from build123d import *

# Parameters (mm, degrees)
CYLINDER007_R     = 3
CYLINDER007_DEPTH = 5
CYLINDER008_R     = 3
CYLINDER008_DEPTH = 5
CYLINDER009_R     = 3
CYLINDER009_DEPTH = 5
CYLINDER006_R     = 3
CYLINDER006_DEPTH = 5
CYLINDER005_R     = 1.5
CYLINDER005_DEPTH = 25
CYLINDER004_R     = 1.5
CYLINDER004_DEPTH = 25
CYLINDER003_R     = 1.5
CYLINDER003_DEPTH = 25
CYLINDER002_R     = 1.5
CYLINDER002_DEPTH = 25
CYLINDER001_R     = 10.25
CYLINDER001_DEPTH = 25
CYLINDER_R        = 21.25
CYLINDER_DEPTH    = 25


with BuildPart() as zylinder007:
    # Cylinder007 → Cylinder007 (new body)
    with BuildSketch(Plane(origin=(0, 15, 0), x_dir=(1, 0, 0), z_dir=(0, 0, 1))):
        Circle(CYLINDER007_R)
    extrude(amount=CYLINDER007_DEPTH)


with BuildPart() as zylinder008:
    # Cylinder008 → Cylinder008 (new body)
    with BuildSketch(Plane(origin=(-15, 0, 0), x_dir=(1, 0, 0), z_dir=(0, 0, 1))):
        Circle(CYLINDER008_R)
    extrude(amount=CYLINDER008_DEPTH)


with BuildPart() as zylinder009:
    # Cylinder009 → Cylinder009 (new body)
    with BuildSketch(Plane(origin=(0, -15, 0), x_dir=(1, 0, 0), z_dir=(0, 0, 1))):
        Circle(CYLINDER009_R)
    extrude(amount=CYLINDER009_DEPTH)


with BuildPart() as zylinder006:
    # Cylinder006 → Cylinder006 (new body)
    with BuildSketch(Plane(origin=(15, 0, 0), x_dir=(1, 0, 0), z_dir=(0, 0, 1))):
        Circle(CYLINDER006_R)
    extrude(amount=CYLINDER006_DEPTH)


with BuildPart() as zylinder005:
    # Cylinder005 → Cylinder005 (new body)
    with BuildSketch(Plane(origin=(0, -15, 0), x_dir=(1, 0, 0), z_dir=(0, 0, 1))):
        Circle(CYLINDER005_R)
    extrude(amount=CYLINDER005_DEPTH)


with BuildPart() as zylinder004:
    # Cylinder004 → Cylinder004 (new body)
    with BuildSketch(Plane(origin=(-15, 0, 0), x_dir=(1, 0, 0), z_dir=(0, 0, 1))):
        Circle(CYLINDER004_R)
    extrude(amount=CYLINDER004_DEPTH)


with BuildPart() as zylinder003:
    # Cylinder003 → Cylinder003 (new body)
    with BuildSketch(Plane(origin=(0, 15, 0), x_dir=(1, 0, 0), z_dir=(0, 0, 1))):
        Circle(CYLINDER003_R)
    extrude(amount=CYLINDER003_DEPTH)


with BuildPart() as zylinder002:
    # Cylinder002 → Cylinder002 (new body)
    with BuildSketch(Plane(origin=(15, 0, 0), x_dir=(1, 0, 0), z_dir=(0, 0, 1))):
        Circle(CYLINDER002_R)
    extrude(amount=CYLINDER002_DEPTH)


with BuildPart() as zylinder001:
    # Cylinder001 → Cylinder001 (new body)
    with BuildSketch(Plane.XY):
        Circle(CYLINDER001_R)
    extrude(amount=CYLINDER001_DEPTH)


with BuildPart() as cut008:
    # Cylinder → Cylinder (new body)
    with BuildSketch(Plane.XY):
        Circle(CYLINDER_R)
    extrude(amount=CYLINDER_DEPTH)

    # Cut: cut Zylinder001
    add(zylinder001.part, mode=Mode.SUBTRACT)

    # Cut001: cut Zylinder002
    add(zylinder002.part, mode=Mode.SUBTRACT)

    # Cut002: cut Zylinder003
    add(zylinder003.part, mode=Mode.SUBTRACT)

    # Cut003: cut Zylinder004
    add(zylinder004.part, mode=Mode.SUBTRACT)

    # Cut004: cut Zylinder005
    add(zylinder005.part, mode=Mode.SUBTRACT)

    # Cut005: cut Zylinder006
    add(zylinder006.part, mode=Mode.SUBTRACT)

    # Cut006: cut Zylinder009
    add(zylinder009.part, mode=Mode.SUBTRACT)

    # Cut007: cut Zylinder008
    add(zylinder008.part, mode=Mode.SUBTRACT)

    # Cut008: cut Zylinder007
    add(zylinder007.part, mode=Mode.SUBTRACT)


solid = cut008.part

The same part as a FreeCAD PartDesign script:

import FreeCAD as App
import Part
import Sketcher
Q = App.Units.Quantity

doc = App.newDocument("Part")
body = doc.addObject("PartDesign::Body", "Body")

sketch1 = doc.addObject("Sketcher::SketchObject", "Sketch")
body.addObject(sketch1)
sketch1.AttachmentSupport = (doc.XY_Plane, [""])
sketch1.MapMode = "FlatFace"
sketch1.addGeometry(Part.Circle(App.Vector(0, 15, 0), App.Vector(0, 0, 1), 3), False)
sketch1.addConstraint(Sketcher.Constraint("PointOnObject", 0, 3, -2))
sketch1.addConstraint(Sketcher.Constraint("Diameter", 0, Q("6 mm")))
sketch1.addConstraint(Sketcher.Constraint("DistanceY", -1, 1, 0, 3, Q("15 mm")))
pad1 = doc.addObject("PartDesign::Pad", "Pad")
body.addObject(pad1)
pad1.Profile = sketch1
pad1.Length = 5
body2 = doc.addObject("PartDesign::Body", "Body001")

sketch2 = doc.addObject("Sketcher::SketchObject", "Sketch001")
body2.addObject(sketch2)
sketch2.AttachmentSupport = (doc.getObject("XY_Plane001"), [""])
sketch2.MapMode = "FlatFace"
sketch2.addGeometry(Part.Circle(App.Vector(-15, 0, 0), App.Vector(0, 0, 1), 3), False)
sketch2.addConstraint(Sketcher.Constraint("PointOnObject", 0, 3, -1))
sketch2.addConstraint(Sketcher.Constraint("Diameter", 0, Q("6 mm")))
sketch2.addConstraint(Sketcher.Constraint("DistanceX", 0, 3, -1, 1, Q("15 mm")))
pad2 = doc.addObject("PartDesign::Pad", "Pad001")
body2.addObject(pad2)
pad2.Profile = sketch2
pad2.Length = 5
body3 = doc.addObject("PartDesign::Body", "Body002")

sketch3 = doc.addObject("Sketcher::SketchObject", "Sketch002")
body3.addObject(sketch3)
sketch3.AttachmentSupport = (doc.getObject("XY_Plane002"), [""])
sketch3.MapMode = "FlatFace"
sketch3.addGeometry(Part.Circle(App.Vector(0, -15, 0), App.Vector(0, 0, 1), 3), False)
sketch3.addConstraint(Sketcher.Constraint("PointOnObject", 0, 3, -2))
sketch3.addConstraint(Sketcher.Constraint("Diameter", 0, Q("6 mm")))
sketch3.addConstraint(Sketcher.Constraint("DistanceY", 0, 3, -1, 1, Q("15 mm")))
pad3 = doc.addObject("PartDesign::Pad", "Pad002")
body3.addObject(pad3)
pad3.Profile = sketch3
pad3.Length = 5
body4 = doc.addObject("PartDesign::Body", "Body003")

sketch4 = doc.addObject("Sketcher::SketchObject", "Sketch003")
body4.addObject(sketch4)
sketch4.AttachmentSupport = (doc.getObject("XY_Plane003"), [""])
sketch4.MapMode = "FlatFace"
sketch4.addGeometry(Part.Circle(App.Vector(15, 0, 0), App.Vector(0, 0, 1), 3), False)
sketch4.addConstraint(Sketcher.Constraint("PointOnObject", 0, 3, -1))
sketch4.addConstraint(Sketcher.Constraint("Diameter", 0, Q("6 mm")))
sketch4.addConstraint(Sketcher.Constraint("DistanceX", -1, 1, 0, 3, Q("15 mm")))
pad4 = doc.addObject("PartDesign::Pad", "Pad003")
body4.addObject(pad4)
pad4.Profile = sketch4
pad4.Length = 5
body5 = doc.addObject("PartDesign::Body", "Body004")

sketch5 = doc.addObject("Sketcher::SketchObject", "Sketch004")
body5.addObject(sketch5)
sketch5.AttachmentSupport = (doc.getObject("XY_Plane004"), [""])
sketch5.MapMode = "FlatFace"
sketch5.addGeometry(Part.Circle(App.Vector(0, -15, 0), App.Vector(0, 0, 1), 1.5), False)
sketch5.addConstraint(Sketcher.Constraint("PointOnObject", 0, 3, -2))
sketch5.addConstraint(Sketcher.Constraint("Diameter", 0, Q("3 mm")))
sketch5.addConstraint(Sketcher.Constraint("DistanceY", 0, 3, -1, 1, Q("15 mm")))
pad5 = doc.addObject("PartDesign::Pad", "Pad004")
body5.addObject(pad5)
pad5.Profile = sketch5
pad5.Length = 25
body6 = doc.addObject("PartDesign::Body", "Body005")

sketch6 = doc.addObject("Sketcher::SketchObject", "Sketch005")
body6.addObject(sketch6)
sketch6.AttachmentSupport = (doc.getObject("XY_Plane005"), [""])
sketch6.MapMode = "FlatFace"
sketch6.addGeometry(Part.Circle(App.Vector(-15, 0, 0), App.Vector(0, 0, 1), 1.5), False)
sketch6.addConstraint(Sketcher.Constraint("PointOnObject", 0, 3, -1))
sketch6.addConstraint(Sketcher.Constraint("Diameter", 0, Q("3 mm")))
sketch6.addConstraint(Sketcher.Constraint("DistanceX", 0, 3, -1, 1, Q("15 mm")))
pad6 = doc.addObject("PartDesign::Pad", "Pad005")
body6.addObject(pad6)
pad6.Profile = sketch6
pad6.Length = 25
body7 = doc.addObject("PartDesign::Body", "Body006")

sketch7 = doc.addObject("Sketcher::SketchObject", "Sketch006")
body7.addObject(sketch7)
sketch7.AttachmentSupport = (doc.getObject("XY_Plane006"), [""])
sketch7.MapMode = "FlatFace"
sketch7.addGeometry(Part.Circle(App.Vector(0, 15, 0), App.Vector(0, 0, 1), 1.5), False)
sketch7.addConstraint(Sketcher.Constraint("PointOnObject", 0, 3, -2))
sketch7.addConstraint(Sketcher.Constraint("Diameter", 0, Q("3 mm")))
sketch7.addConstraint(Sketcher.Constraint("DistanceY", -1, 1, 0, 3, Q("15 mm")))
pad7 = doc.addObject("PartDesign::Pad", "Pad006")
body7.addObject(pad7)
pad7.Profile = sketch7
pad7.Length = 25
body8 = doc.addObject("PartDesign::Body", "Body007")

sketch8 = doc.addObject("Sketcher::SketchObject", "Sketch007")
body8.addObject(sketch8)
sketch8.AttachmentSupport = (doc.getObject("XY_Plane007"), [""])
sketch8.MapMode = "FlatFace"
sketch8.addGeometry(Part.Circle(App.Vector(15, 0, 0), App.Vector(0, 0, 1), 1.5), False)
sketch8.addConstraint(Sketcher.Constraint("PointOnObject", 0, 3, -1))
sketch8.addConstraint(Sketcher.Constraint("Diameter", 0, Q("3 mm")))
sketch8.addConstraint(Sketcher.Constraint("DistanceX", -1, 1, 0, 3, Q("15 mm")))
pad8 = doc.addObject("PartDesign::Pad", "Pad007")
body8.addObject(pad8)
pad8.Profile = sketch8
pad8.Length = 25
body9 = doc.addObject("PartDesign::Body", "Body008")

sketch9 = doc.addObject("Sketcher::SketchObject", "Sketch008")
body9.addObject(sketch9)
sketch9.AttachmentSupport = (doc.getObject("XY_Plane008"), [""])
sketch9.MapMode = "FlatFace"
sketch9.addGeometry(Part.Circle(App.Vector(0, 0, 0), App.Vector(0, 0, 1), 10), False)
sketch9.addConstraint(Sketcher.Constraint("Coincident", 0, 3, -1, 1))
sketch9.addConstraint(Sketcher.Constraint("Diameter", 0, Q("20.5 mm")))
pad9 = doc.addObject("PartDesign::Pad", "Pad008")
body9.addObject(pad9)
pad9.Profile = sketch9
pad9.Length = 25
body10 = doc.addObject("PartDesign::Body", "Body009")

sketch10 = doc.addObject("Sketcher::SketchObject", "Sketch009")
body10.addObject(sketch10)
sketch10.AttachmentSupport = (doc.getObject("XY_Plane009"), [""])
sketch10.MapMode = "FlatFace"
sketch10.addGeometry(Part.Circle(App.Vector(0, 0, 0), App.Vector(0, 0, 1), 21), False)
sketch10.addConstraint(Sketcher.Constraint("Coincident", 0, 3, -1, 1))
sketch10.addConstraint(Sketcher.Constraint("Diameter", 0, Q("42.5 mm")))
pad10 = doc.addObject("PartDesign::Pad", "Pad009")
body10.addObject(pad10)
pad10.Profile = sketch10
pad10.Length = 25
doc.recompute()

boolean = doc.addObject("PartDesign::Boolean", "Boolean")
body10.addObject(boolean)
boolean.Type = "Cut"
boolean.addObjects([body9])
doc.recompute()

boolean2 = doc.addObject("PartDesign::Boolean", "Boolean001")
body10.addObject(boolean2)
boolean2.Type = "Cut"
boolean2.addObjects([body8])
doc.recompute()

boolean3 = doc.addObject("PartDesign::Boolean", "Boolean002")
body10.addObject(boolean3)
boolean3.Type = "Cut"
boolean3.addObjects([body7])
doc.recompute()

boolean4 = doc.addObject("PartDesign::Boolean", "Boolean003")
body10.addObject(boolean4)
boolean4.Type = "Cut"
boolean4.addObjects([body6])
doc.recompute()

boolean5 = doc.addObject("PartDesign::Boolean", "Boolean004")
body10.addObject(boolean5)
boolean5.Type = "Cut"
boolean5.addObjects([body5])
doc.recompute()

boolean6 = doc.addObject("PartDesign::Boolean", "Boolean005")
body10.addObject(boolean6)
boolean6.Type = "Cut"
boolean6.addObjects([body4])
doc.recompute()

boolean7 = doc.addObject("PartDesign::Boolean", "Boolean006")
body10.addObject(boolean7)
boolean7.Type = "Cut"
boolean7.addObjects([body3])
doc.recompute()

boolean8 = doc.addObject("PartDesign::Boolean", "Boolean007")
body10.addObject(boolean8)
boolean8.Type = "Cut"
boolean8.addObjects([body2])
doc.recompute()

boolean9 = doc.addObject("PartDesign::Boolean", "Boolean008")
body10.addObject(boolean9)
boolean9.Type = "Cut"
boolean9.addObjects([body])

doc.recompute()
